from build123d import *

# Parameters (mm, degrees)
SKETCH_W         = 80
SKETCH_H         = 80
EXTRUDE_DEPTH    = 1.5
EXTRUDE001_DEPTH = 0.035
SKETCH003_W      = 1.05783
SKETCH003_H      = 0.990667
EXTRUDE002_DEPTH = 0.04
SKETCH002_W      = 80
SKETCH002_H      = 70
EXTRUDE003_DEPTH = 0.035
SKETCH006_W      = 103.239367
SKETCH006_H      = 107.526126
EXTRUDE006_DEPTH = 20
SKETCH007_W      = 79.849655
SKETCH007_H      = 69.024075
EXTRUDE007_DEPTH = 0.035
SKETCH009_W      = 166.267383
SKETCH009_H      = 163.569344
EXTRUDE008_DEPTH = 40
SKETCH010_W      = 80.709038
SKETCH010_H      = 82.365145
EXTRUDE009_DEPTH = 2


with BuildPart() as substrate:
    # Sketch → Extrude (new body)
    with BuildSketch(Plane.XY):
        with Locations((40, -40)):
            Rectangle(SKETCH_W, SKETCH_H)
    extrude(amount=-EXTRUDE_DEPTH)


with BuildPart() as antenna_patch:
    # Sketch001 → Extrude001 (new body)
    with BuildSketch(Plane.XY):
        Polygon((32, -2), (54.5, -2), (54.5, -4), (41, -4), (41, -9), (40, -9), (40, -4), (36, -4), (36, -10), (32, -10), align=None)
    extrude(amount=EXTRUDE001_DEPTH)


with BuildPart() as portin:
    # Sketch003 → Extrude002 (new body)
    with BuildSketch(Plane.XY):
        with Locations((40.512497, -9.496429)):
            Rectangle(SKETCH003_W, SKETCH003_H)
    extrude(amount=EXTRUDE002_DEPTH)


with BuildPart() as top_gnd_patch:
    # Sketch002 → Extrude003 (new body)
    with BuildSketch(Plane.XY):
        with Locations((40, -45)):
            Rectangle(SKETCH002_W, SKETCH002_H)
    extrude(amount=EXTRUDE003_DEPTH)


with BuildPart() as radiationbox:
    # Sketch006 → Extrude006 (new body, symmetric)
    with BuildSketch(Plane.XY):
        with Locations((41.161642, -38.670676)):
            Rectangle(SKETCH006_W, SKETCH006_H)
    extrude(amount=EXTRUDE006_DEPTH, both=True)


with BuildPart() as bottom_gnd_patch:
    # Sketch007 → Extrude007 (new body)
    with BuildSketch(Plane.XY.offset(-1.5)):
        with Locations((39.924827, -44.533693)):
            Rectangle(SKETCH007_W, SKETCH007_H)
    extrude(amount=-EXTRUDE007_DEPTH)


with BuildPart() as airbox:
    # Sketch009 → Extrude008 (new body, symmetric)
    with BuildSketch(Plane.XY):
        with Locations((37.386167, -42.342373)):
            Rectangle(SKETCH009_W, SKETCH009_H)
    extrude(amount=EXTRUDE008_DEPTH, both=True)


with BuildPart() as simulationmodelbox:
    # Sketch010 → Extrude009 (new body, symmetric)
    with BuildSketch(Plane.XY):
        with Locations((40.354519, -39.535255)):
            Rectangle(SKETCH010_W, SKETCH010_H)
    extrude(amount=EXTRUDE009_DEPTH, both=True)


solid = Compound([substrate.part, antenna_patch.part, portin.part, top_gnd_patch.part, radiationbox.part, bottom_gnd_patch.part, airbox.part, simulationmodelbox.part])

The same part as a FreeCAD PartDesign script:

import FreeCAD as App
import Part
import Sketcher
Q = App.Units.Quantity

doc = App.newDocument("Part")
params = doc.addObject("Spreadsheet::Sheet", "Params")
for row, (alias, value) in enumerate([
    ("sketch1_width", "80 mm"),
    ("pad1_length", "1.5 mm"),
    ("sketch2_width", "4 mm"),
    ("sketch2_width2", "1 mm"),
    ("sketch2_height", "8 mm"),
    ("sketch2_height2", "6 mm"),
    ("sketch2_height3", "5 mm"),
    ("pad2_length", "0.035 mm"),
    ("pad3_length", "0.04 mm"),
    ("sketch4_width", "80 mm"),
    ("sketch4_height", "70 mm"),
    ("pad4_length", "0.035 mm"),
    ("pad5_length", "40 mm"),
    ("pad6_length", "0.035 mm"),
    ("pad7_length", "80 mm"),
    ("pad8_length", "4 mm"),
], start=1):
    params.set(f"A{row}", alias)
    params.set(f"B{row}", "=" + value)
    params.setAlias(f"B{row}", alias)

body = doc.addObject("PartDesign::Body", "Body")

# Sketch on XY plane
sketch1 = doc.addObject("Sketcher::SketchObject", "Sketch")
body.addObject(sketch1)
sketch1.AttachmentSupport = (doc.XY_Plane, [""])
sketch1.MapMode = "FlatFace"
sketch1.addGeometry([
    Part.LineSegment(App.Vector(0, 0, 0), App.Vector(0, -80, 0)),
    Part.LineSegment(App.Vector(0, -80, 0), App.Vector(80, -80, 0)),
    Part.LineSegment(App.Vector(80, -80, 0), App.Vector(80, 0, 0)),
    Part.LineSegment(App.Vector(80, 0, 0), App.Vector(0, 0, 0)),
], False)
sketch1.addConstraint([
    Sketcher.Constraint("Coincident", 0, 2, 1, 1),
    Sketcher.Constraint("Coincident", 1, 2, 2, 1),
    Sketcher.Constraint("Coincident", 2, 2, 3, 1),
    Sketcher.Constraint("Coincident", 3, 2, 0, 1),
    Sketcher.Constraint("Vertical", 0),
    Sketcher.Constraint("Horizontal", 1),
    Sketcher.Constraint("Vertical", 2),
    Sketcher.Constraint("Horizontal", 3),
    Sketcher.Constraint("Coincident", 3, 2, -1, 1),
    Sketcher.Constraint("Equal", 3, 0),
    Sketcher.Constraint("DistanceX", 1, 1, 1, 2, Q("80 mm")),
])
sketch1.setExpression("Constraints[10]", "Params.sketch1_width")
pad1 = doc.addObject("PartDesign::Pad", "Pad")
body.addObject(pad1)
pad1.Profile = sketch1
pad1.setExpression("Length", "Params.pad1_length")
pad1.Reversed = True
body2 = doc.addObject("PartDesign::Body", "Body001")

# Sketch on XY plane
sketch2 = doc.addObject("Sketcher::SketchObject", "Sketch001")
body2.addObject(sketch2)
sketch2.AttachmentSupport = (doc.getObject("XY_Plane001"), [""])
sketch2.MapMode = "FlatFace"
sketch2.addGeometry([
    Part.LineSegment(App.Vector(54.5, -2, 0), App.Vector(32, -2, 0)),  # 0
    Part.LineSegment(App.Vector(32, -2, 0), App.Vector(32, -10, 0)),  # 1
    Part.LineSegment(App.Vector(32, -10, 0), App.Vector(36, -10, 0)),  # 2
    Part.LineSegment(App.Vector(36, -10, 0), App.Vector(36, -4, 0)),  # 3
    Part.LineSegment(App.Vector(36, -4, 0), App.Vector(40, -4, 0)),  # 4
    Part.LineSegment(App.Vector(40, -4, 0), App.Vector(40, -9, 0)),  # 5
    Part.LineSegment(App.Vector(40, -9, 0), App.Vector(41, -9, 0)),  # 6
    Part.LineSegment(App.Vector(41, -9, 0), App.Vector(41, -4, 0)),  # 7
    Part.LineSegment(App.Vector(41, -4, 0), App.Vector(54.5, -4, 0)),  # 8
    Part.LineSegment(App.Vector(54.5, -4, 0), App.Vector(54.5, -2, 0)),  # 9
], False)
sketch2.addConstraint([
    Sketcher.Constraint("Coincident", 0, 2, 1, 1),
    Sketcher.Constraint("Coincident", 1, 2, 2, 1),
    Sketcher.Constraint("Coincident", 2, 2, 3, 1),
    Sketcher.Constraint("Coincident", 3, 2, 4, 1),
    Sketcher.Constraint("Coincident", 4, 2, 5, 1),
    Sketcher.Constraint("Coincident", 5, 2, 6, 1),
    Sketcher.Constraint("Coincident", 6, 2, 7, 1),
    Sketcher.Constraint("Coincident", 7, 2, 8, 1),
    Sketcher.Constraint("Coincident", 8, 2, 9, 1),
    Sketcher.Constraint("Coincident", 9, 2, 0, 1),
    Sketcher.Constraint("Horizontal", 0),
    Sketcher.Constraint("Vertical", 1),
    Sketcher.Constraint("Horizontal", 2),
    Sketcher.Constraint("Vertical", 3),
    Sketcher.Constraint("Horizontal", 4),
    Sketcher.Constraint("Vertical", 5),
    Sketcher.Constraint("Horizontal", 6),
    Sketcher.Constraint("Vertical", 7),
    Sketcher.Constraint("Horizontal", 8),
    Sketcher.Constraint("Vertical", 9),
    Sketcher.Constraint("Horizontal", 4, 2, 7, 2),
    Sketcher.Constraint("Equal", 2, 4),
    Sketcher.Constraint("DistanceX", 2, 1, 2, 2, Q("4 mm")),
    Sketcher.Constraint("DistanceX", 6, 1, 6, 2, Q("1 mm")),
    Sketcher.Constraint("DistanceY", 1, 2, 1, 1, Q("8 mm")),
    Sketcher.Constraint("DistanceY", 3, 1, 3, 2, Q("6 mm")),
    Sketcher.Constraint("DistanceY", 5, 2, 5, 1, Q("5 mm")),
    Sketcher.Constraint("DistanceX", 0, 2, 0, 1, Q("22.5 mm")),
    Sketcher.Constraint("DistanceX", -1, 1, 0, 2, Q("32 mm")),
    Sketcher.Constraint("DistanceY", 0, 2, -1, 1, Q("2 mm")),
])
sketch2.setExpression("Constraints[22]", "Params.sketch2_width")
sketch2.setExpression("Constraints[23]", "Params.sketch2_width2")
sketch2.setExpression("Constraints[24]", "Params.sketch2_height")
sketch2.setExpression("Constraints[25]", "Params.sketch2_height2")
sketch2.setExpression("Constraints[26]", "Params.sketch2_height3")
pad2 = doc.addObject("PartDesign::Pad", "Pad001")
body2.addObject(pad2)
pad2.Profile = sketch2
pad2.setExpression("Length", "Params.pad2_length")
body3 = doc.addObject("PartDesign::Body", "Body002")

# Sketch on XY plane
sketch3 = doc.addObject("Sketcher::SketchObject", "Sketch002")
body3.addObject(sketch3)
sketch3.AttachmentSupport = (doc.getObject("XY_Plane002"), [""])
sketch3.MapMode = "FlatFace"
sketch3.addGeometry([
    Part.LineSegment(App.Vector(40, -9, 0), App.Vector(40, -10, 0)),
    Part.LineSegment(App.Vector(40, -10, 0), App.Vector(41, -10, 0)),
    Part.LineSegment(App.Vector(41, -10, 0), App.Vector(41, -9, 0)),
    Part.LineSegment(App.Vector(41, -9, 0), App.Vector(40, -9, 0)),
], False)
sketch3.addConstraint([
    Sketcher.Constraint("Coincident", 0, 2, 1, 1),
    Sketcher.Constraint("Coincident", 1, 2, 2, 1),
    Sketcher.Constraint("Coincident", 2, 2, 3, 1),
    Sketcher.Constraint("Coincident", 3, 2, 0, 1),
    Sketcher.Constraint("Vertical", 0),
    Sketcher.Constraint("Horizontal", 1),
    Sketcher.Constraint("Vertical", 2),
    Sketcher.Constraint("Horizontal", 3),
    Sketcher.Constraint("DistanceX", 1, 1, 1, 2, Q("1.05783 mm")),
    Sketcher.Constraint("DistanceY", 0, 2, 0, 1, Q("0.990667 mm")),
    Sketcher.Constraint("DistanceX", -1, 1, 0, 2, Q("39.983582 mm")),
    Sketcher.Constraint("DistanceY", 0, 2, -1, 1, Q("9.991763 mm")),
])
pad3 = doc.addObject("PartDesign::Pad", "Pad002")
body3.addObject(pad3)
pad3.Profile = sketch3
pad3.setExpression("Length", "Params.pad3_length")
body4 = doc.addObject("PartDesign::Body", "Body003")

# Sketch on XY plane
sketch4 = doc.addObject("Sketcher::SketchObject", "Sketch003")
body4.addObject(sketch4)
sketch4.AttachmentSupport = (doc.getObject("XY_Plane003"), [""])
sketch4.MapMode = "FlatFace"
sketch4.addGeometry([
    Part.LineSegment(App.Vector(0, -10, 0), App.Vector(0, -80, 0)),
    Part.LineSegment(App.Vector(0, -80, 0), App.Vector(80, -80, 0)),
    Part.LineSegment(App.Vector(80, -80, 0), App.Vector(80, -10, 0)),
    Part.LineSegment(App.Vector(80, -10, 0), App.Vector(0, -10, 0)),
], False)
sketch4.addConstraint([
    Sketcher.Constraint("Coincident", 0, 2, 1, 1),
    Sketcher.Constraint("Coincident", 1, 2, 2, 1),
    Sketcher.Constraint("Coincident", 2, 2, 3, 1),
    Sketcher.Constraint("Coincident", 3, 2, 0, 1),
    Sketcher.Constraint("Vertical", 0),
    Sketcher.Constraint("Horizontal", 1),
    Sketcher.Constraint("Vertical", 2),
    Sketcher.Constraint("Horizontal", 3),
    Sketcher.Constraint("PointOnObject", 0, 2, -2),
    Sketcher.Constraint("DistanceX", 1, 1, 1, 2, Q("80 mm")),
    Sketcher.Constraint("DistanceY", 0, 2, 0, 1, Q("70 mm")),
    Sketcher.Constraint("DistanceY", 0, 2, -1, 1, Q("80 mm")),
])
sketch4.setExpression("Constraints[9]", "Params.sketch4_width")
sketch4.setExpression("Constraints[10]", "Params.sketch4_height")
pad4 = doc.addObject("PartDesign::Pad", "Pad003")
body4.addObject(pad4)
pad4.Profile = sketch4
pad4.setExpression("Length", "Params.pad4_length")
body5 = doc.addObject("PartDesign::Body", "Body004")

# Sketch on XY plane
sketch5 = doc.addObject("Sketcher::SketchObject", "Sketch004")
body5.addObject(sketch5)
sketch5.AttachmentSupport = (doc.getObject("XY_Plane004"), [""])
sketch5.MapMode = "FlatFace"
sketch5.addGeometry([
    Part.LineSegment(App.Vector(-10, 15, 0), App.Vector(-10, -92, 0)),
    Part.LineSegment(App.Vector(-10, -92, 0), App.Vector(93, -92, 0)),
    Part.LineSegment(App.Vector(93, -92, 0), App.Vector(93, 15, 0)),
    Part.LineSegment(App.Vector(93, 15, 0), App.Vector(-10, 15, 0)),
], False)
sketch5.addConstraint([
    Sketcher.Constraint("Coincident", 0, 2, 1, 1),
    Sketcher.Constraint("Coincident", 1, 2, 2, 1),
    Sketcher.Constraint("Coincident", 2, 2, 3, 1),
    Sketcher.Constraint("Coincident", 3, 2, 0, 1),
    Sketcher.Constraint("Vertical", 0),
    Sketcher.Constraint("Horizontal", 1),
    Sketcher.Constraint("Vertical", 2),
    Sketcher.Constraint("Horizontal", 3),
    Sketcher.Constraint("DistanceX", 1, 1, 1, 2, Q("103.239367 mm")),
    Sketcher.Constraint("DistanceY", 0, 2, 0, 1, Q("107.526126 mm")),
    Sketcher.Constraint("DistanceX", 0, 2, -1, 1, Q("10.458042 mm")),
    Sketcher.Constraint("DistanceY", 0, 2, -1, 1, Q("92.433739 mm")),
])
pad5 = doc.addObject("PartDesign::Pad", "Pad004")
body5.addObject(pad5)
pad5.Profile = sketch5
pad5.setExpression("Length", "Params.pad5_length")
pad5.Midplane = True
body6 = doc.addObject("PartDesign::Body", "Body005")

# Sketch on XY plane
sketch6 = doc.addObject("Sketcher::SketchObject", "Sketch005")
body6.addObject(sketch6)
sketch6.AttachmentSupport = (doc.getObject("XY_Plane005"), [""])
sketch6.MapMode = "FlatFace"
sketch6.AttachmentOffset = App.Placement(App.Vector(0, 0, -1.5), App.Rotation())
sketch6.addGeometry([
    Part.LineSegment(App.Vector(0, -10, 0), App.Vector(0, -79, 0)),
    Part.LineSegment(App.Vector(0, -79, 0), App.Vector(80, -79, 0)),
    Part.LineSegment(App.Vector(80, -79, 0), App.Vector(80, -10, 0)),
    Part.LineSegment(App.Vector(80, -10, 0), App.Vector(0, -10, 0)),
], False)
sketch6.addConstraint([
    Sketcher.Constraint("Coincident", 0, 2, 1, 1),
    Sketcher.Constraint("Coincident", 1, 2, 2, 1),
    Sketcher.Constraint("Coincident", 2, 2, 3, 1),
    Sketcher.Constraint("Coincident", 3, 2, 0, 1),
    Sketcher.Constraint("Vertical", 0),
    Sketcher.Constraint("Horizontal", 1),
    Sketcher.Constraint("Vertical", 2),
    Sketcher.Constraint("Horizontal", 3),
    Sketcher.Constraint("PointOnObject", 0, 2, -2),
    Sketcher.Constraint("DistanceX", 1, 1, 1, 2, Q("79.849655 mm")),
    Sketcher.Constraint("DistanceY", 0, 2, 0, 1, Q("69.024075 mm")),
    Sketcher.Constraint("DistanceY", 0, 2, -1, 1, Q("79.045731 mm")),
])
pad6 = doc.addObject("PartDesign::Pad", "Pad005")
body6.addObject(pad6)
pad6.Profile = sketch6
pad6.setExpression("Length", "Params.pad6_length")
pad6.Reversed = True
body7 = doc.addObject("PartDesign::Body", "Body006")

# Sketch on XY plane
sketch7 = doc.addObject("Sketcher::SketchObject", "Sketch006")
body7.addObject(sketch7)
sketch7.AttachmentSupport = (doc.getObject("XY_Plane006"), [""])
sketch7.MapMode = "FlatFace"
sketch7.addGeometry([
    Part.LineSegment(App.Vector(-46, 39, 0), App.Vector(-46, -124, 0)),
    Part.LineSegment(App.Vector(-46, -124, 0), App.Vector(121, -124, 0)),
    Part.LineSegment(App.Vector(121, -124, 0), App.Vector(121, 39, 0)),
    Part.LineSegment(App.Vector(121, 39, 0), App.Vector(-46, 39, 0)),
], False)
sketch7.addConstraint([
    Sketcher.Constraint("Coincident", 0, 2, 1, 1),
    Sketcher.Constraint("Coincident", 1, 2, 2, 1),
    Sketcher.Constraint("Coincident", 2, 2, 3, 1),
    Sketcher.Constraint("Coincident", 3, 2, 0, 1),
    Sketcher.Constraint("Vertical", 0),
    Sketcher.Constraint("Horizontal", 1),
    Sketcher.Constraint("Vertical", 2),
    Sketcher.Constraint("Horizontal", 3),
    Sketcher.Constraint("DistanceY", -1, 1, 2, 2, Q("39.442299 mm")),
    Sketcher.Constraint("DistanceX", 1, 1, 1, 2, Q("166.267383 mm")),
    Sketcher.Constraint("DistanceY", 0, 2, 0, 1, Q("163.569344 mm")),
    Sketcher.Constraint("DistanceX", -1, 1, 1, 2, Q("120.519858 mm")),
])
pad7 = doc.addObject("PartDesign::Pad", "Pad006")
body7.addObject(pad7)
pad7.Profile = sketch7
pad7.setExpression("Length", "Params.pad7_length")
pad7.Midplane = True
body8 = doc.addObject("PartDesign::Body", "Body007")

# Sketch on XY plane
sketch8 = doc.addObject("Sketcher::SketchObject", "Sketch007")
body8.addObject(sketch8)
sketch8.AttachmentSupport = (doc.getObject("XY_Plane007"), [""])
sketch8.MapMode = "FlatFace"
sketch8.addGeometry([
    Part.LineSegment(App.Vector(0, 2, 0), App.Vector(0, -81, 0)),
    Part.LineSegment(App.Vector(0, -81, 0), App.Vector(81, -81, 0)),
    Part.LineSegment(App.Vector(81, -81, 0), App.Vector(81, 2, 0)),
    Part.LineSegment(App.Vector(81, 2, 0), App.Vector(0, 2, 0)),
], False)
sketch8.addConstraint([
    Sketcher.Constraint("Coincident", 0, 2, 1, 1),
    Sketcher.Constraint("Coincident", 1, 2, 2, 1),
    Sketcher.Constraint("Coincident", 2, 2, 3, 1),
    Sketcher.Constraint("Coincident", 3, 2, 0, 1),
    Sketcher.Constraint("Vertical", 0),
    Sketcher.Constraint("Horizontal", 1),
    Sketcher.Constraint("Vertical", 2),
    Sketcher.Constraint("Horizontal", 3),
    Sketcher.Constraint("PointOnObject", 0, 2, -2),
    Sketcher.Constraint("DistanceX", 1, 1, 1, 2, Q("80.709038 mm")),
    Sketcher.Constraint("DistanceY", 0, 2, 0, 1, Q("82.365145 mm")),
    Sketcher.Constraint("DistanceY", 0, 2, -1, 1, Q("80.717827 mm")),
])
pad8 = doc.addObject("PartDesign::Pad", "Pad007")
body8.addObject(pad8)
pad8.Profile = sketch8
pad8.setExpression("Length", "Params.pad8_length")
pad8.Midplane = True

doc.recompute()
